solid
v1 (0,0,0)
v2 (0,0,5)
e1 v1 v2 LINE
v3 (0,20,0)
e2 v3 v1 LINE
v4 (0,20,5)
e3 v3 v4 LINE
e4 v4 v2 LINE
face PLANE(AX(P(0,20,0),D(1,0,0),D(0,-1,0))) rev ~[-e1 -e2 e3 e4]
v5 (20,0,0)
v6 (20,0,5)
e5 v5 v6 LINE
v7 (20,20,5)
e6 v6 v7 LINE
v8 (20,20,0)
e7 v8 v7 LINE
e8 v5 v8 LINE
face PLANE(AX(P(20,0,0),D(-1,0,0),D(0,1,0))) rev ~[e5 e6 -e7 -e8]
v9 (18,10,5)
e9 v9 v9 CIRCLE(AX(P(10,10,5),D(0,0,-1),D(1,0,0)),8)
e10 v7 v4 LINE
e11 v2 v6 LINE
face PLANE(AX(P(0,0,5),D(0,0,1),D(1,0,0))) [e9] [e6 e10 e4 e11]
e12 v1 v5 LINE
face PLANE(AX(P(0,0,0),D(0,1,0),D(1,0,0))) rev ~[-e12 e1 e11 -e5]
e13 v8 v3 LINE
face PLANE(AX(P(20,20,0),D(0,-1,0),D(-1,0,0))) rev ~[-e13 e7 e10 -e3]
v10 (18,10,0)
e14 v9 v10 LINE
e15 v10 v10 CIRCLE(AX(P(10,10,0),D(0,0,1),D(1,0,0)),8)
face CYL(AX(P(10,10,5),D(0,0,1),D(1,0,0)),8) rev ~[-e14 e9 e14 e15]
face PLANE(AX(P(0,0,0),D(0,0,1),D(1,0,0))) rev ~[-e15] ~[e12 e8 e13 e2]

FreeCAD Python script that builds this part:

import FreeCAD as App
import Part
import Sketcher
from FreeCAD import Vector
Q = App.Units.Quantity

doc = App.newDocument("Part")
body = doc.addObject("PartDesign::Body", "Body")

sketch1 = body.newObject("Sketcher::SketchObject", "Sketch")
sketch1.AttachmentSupport = (doc.getObject("XY_Plane"), [""])
sketch1.MapMode = "FlatFace"
sketch1.addGeometry([
    Part.LineSegment(Vector(0, 20, 0), Vector(0, 0, 0)),
    Part.LineSegment(Vector(0, 0, 0), Vector(20, 0, 0)),
    Part.LineSegment(Vector(20, 0, 0), Vector(20, 20, 0)),
    Part.LineSegment(Vector(20, 20, 0), Vector(0, 20, 0)),
], False)
sketch1.addConstraint([
    Sketcher.Constraint("Coincident", 0, 2, 1, 1),
    Sketcher.Constraint("Coincident", 1, 2, 2, 1),
    Sketcher.Constraint("Coincident", 2, 2, 3, 1),
    Sketcher.Constraint("Coincident", 3, 2, 0, 1),
    Sketcher.Constraint("Vertical", 0),
    Sketcher.Constraint("Horizontal", 1),
    Sketcher.Constraint("Vertical", 2),
    Sketcher.Constraint("Horizontal", 3),
    Sketcher.Constraint("Coincident", 0, 2, -1, 1),
    Sketcher.Constraint("Equal", 3, 0),
    Sketcher.Constraint("DistanceX", 1, 1, 1, 2, Q("20 mm")),
])
pad1 = body.newObject("PartDesign::Pad", "Pad")
pad1.Profile = sketch1
pad1.Length = 5

sketch2 = body.newObject("Sketcher::SketchObject", "Sketch001")
sketch2.AttachmentSupport = (doc.getObject("XY_Plane"), [""])
sketch2.MapMode = "FlatFace"
sketch2.AttachmentOffset = App.Placement(Vector(0, 0, 5), App.Rotation())
sketch2.addGeometry(Part.Circle(Vector(10, 10, 0), Vector(0, 0, 1), 8), False)
sketch2.addConstraint([
    Sketcher.Constraint("Diameter", 0, Q("16 mm")),
    Sketcher.Constraint("DistanceX", -1, 1, 0, 3, Q("10 mm")),
    Sketcher.Constraint("DistanceY", -1, 1, 0, 3, Q("10 mm")),
])
pocket1 = body.newObject("PartDesign::Pocket", "Pocket")
pocket1.Profile = sketch2
pocket1.Type = "ThroughAll"

doc.recompute()
